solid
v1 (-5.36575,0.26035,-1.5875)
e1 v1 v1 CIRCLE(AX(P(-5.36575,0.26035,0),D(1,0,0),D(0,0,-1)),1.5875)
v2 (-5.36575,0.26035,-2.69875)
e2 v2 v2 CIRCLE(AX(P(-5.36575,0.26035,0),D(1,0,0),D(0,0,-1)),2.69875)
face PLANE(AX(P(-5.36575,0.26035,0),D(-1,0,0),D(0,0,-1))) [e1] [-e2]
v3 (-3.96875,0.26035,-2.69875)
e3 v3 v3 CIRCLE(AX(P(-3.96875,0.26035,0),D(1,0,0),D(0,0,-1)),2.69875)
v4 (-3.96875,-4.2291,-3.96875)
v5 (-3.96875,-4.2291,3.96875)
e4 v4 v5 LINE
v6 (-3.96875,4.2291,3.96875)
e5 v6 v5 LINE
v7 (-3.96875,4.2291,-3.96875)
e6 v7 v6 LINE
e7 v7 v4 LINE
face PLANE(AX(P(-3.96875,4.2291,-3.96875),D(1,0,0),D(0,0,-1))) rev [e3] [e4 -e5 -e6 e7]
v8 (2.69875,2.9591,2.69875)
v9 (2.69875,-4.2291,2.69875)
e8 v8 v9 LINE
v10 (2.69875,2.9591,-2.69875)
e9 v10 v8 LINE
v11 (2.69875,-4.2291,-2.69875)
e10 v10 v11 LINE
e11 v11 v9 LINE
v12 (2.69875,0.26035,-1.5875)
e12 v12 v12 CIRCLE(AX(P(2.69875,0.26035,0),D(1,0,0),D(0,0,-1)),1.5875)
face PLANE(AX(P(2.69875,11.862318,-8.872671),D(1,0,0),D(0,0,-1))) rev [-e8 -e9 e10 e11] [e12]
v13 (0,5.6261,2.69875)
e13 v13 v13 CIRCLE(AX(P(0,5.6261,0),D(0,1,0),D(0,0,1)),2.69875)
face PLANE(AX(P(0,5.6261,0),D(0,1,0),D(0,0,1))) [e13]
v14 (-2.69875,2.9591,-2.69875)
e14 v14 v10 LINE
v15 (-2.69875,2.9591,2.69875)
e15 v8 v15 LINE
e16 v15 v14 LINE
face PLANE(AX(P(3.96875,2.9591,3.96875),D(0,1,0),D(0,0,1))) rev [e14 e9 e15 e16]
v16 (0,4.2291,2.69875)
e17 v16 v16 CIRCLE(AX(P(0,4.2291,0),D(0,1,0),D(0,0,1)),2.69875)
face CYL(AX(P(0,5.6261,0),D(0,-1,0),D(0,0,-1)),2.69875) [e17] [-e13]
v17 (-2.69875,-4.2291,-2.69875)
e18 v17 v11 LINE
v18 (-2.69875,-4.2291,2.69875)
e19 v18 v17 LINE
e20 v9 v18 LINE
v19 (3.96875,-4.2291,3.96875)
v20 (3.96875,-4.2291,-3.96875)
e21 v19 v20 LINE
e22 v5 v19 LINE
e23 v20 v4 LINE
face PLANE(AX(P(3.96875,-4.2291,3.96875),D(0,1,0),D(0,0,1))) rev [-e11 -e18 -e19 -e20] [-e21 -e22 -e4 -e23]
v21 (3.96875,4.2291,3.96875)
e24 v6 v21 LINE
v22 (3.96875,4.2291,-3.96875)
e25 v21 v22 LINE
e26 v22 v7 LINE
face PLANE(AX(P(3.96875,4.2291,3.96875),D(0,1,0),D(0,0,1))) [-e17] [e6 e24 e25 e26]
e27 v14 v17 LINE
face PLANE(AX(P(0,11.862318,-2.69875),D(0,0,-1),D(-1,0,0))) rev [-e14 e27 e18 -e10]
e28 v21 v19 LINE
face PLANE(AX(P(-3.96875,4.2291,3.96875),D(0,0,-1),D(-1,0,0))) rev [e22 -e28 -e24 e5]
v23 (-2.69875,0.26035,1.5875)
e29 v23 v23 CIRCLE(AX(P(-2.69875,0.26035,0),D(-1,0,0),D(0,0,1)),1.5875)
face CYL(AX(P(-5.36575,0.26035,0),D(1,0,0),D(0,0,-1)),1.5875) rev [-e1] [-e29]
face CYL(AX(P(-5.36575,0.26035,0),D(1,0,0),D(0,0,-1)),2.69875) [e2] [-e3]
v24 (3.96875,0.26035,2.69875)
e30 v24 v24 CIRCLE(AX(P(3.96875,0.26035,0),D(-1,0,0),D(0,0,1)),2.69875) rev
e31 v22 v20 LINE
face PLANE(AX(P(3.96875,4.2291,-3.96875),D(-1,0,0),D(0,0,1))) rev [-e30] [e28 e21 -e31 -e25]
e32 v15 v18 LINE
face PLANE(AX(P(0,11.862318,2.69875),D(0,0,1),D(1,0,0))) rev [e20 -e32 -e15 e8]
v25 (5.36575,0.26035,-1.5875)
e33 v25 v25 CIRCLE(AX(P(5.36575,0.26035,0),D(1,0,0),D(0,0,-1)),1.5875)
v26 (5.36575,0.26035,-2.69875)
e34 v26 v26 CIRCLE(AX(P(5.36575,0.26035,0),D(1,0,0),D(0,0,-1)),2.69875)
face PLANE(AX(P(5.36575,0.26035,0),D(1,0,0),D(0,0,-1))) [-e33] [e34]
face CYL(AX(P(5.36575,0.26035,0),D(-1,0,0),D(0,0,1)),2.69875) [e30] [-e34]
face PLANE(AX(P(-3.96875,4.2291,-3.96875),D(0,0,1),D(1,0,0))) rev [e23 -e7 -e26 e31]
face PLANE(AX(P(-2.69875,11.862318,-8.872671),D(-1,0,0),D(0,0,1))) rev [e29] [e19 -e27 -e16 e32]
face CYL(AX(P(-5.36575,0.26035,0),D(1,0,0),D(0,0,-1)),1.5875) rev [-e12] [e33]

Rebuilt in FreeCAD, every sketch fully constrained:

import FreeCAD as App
import Part
import Sketcher
from FreeCAD import Vector
Q = App.Units.Quantity


def add_polygon(sketch, points):
    """Adds a closed chain of lines whose ends are joined by coincident constraints."""
    first, n = sketch.GeometryCount, len(points)
    for a, b in zip(points, points[1:] + points[:1]):
        sketch.addGeometry(Part.LineSegment(App.Vector(*a, 0), App.Vector(*b, 0)), False)
    for i in range(n):
        sketch.addConstraint(Sketcher.Constraint("Coincident", first + i, 2, first + (i + 1) % n, 1))

doc = App.newDocument("Part")
body = doc.addObject("PartDesign::Body", "Body")

# Sketch on XZ plane
sketch1 = body.newObject("Sketcher::SketchObject", "Sketch")
sketch1.AttachmentSupport = (doc.getObject("XZ_Plane"), [""])
sketch1.MapMode = "FlatFace"
add_polygon(sketch1, [(-4, -4), (-4, 4), (4, 4), (4, -4)])  # lines 0-3
sketch1.addConstraint(Sketcher.Constraint("Vertical", 0))
sketch1.addConstraint(Sketcher.Constraint("Horizontal", 1))
sketch1.addConstraint(Sketcher.Constraint("Vertical", 2))
sketch1.addConstraint(Sketcher.Constraint("Horizontal", 3))
sketch1.addConstraint(Sketcher.Constraint("Symmetric", 0, 2, 2, 2, -1, 1))
sketch1.addConstraint(Sketcher.Constraint("Equal", 3, 0))
sketch1.addConstraint(Sketcher.Constraint("DistanceX", 1, 1, 1, 2, Q("0.3125 in")))
pad1 = body.newObject("PartDesign::Pad", "Pad")
pad1.Profile = sketch1
pad1.Length = Q("0.333 in")
pad1.Midplane = True

# Sketch on XZ plane
sketch2 = body.newObject("Sketcher::SketchObject", "Sketch001")
sketch2.AttachmentSupport = (doc.getObject("XZ_Plane"), [""])
sketch2.MapMode = "FlatFace"
sketch2.AttachmentOffset = App.Placement(Vector(0, 0, 0.1665 * 25.4), App.Rotation())
add_polygon(sketch2, [(-3, 3), (-3, -3), (3, -3), (3, 3)])  # lines 0-3
sketch2.addConstraint(Sketcher.Constraint("Vertical", 0))
sketch2.addConstraint(Sketcher.Constraint("Horizontal", 1))
sketch2.addConstraint(Sketcher.Constraint("Vertical", 2))
sketch2.addConstraint(Sketcher.Constraint("Horizontal", 3))
sketch2.addConstraint(Sketcher.Constraint("Symmetric", 0, 2, 2, 2, -1, 1))
sketch2.addConstraint(Sketcher.Constraint("Equal", 3, 0))
sketch2.addConstraint(Sketcher.Constraint("DistanceX", 1, 1, 1, 2, Q("0.2125 in")))
pocket1 = body.newObject("PartDesign::Pocket", "Pocket")
pocket1.Profile = sketch2
pocket1.Length = Q("0.283 in")

# Sketch on XZ plane
sketch3 = body.newObject("Sketcher::SketchObject", "Sketch002")
sketch3.AttachmentSupport = (doc.getObject("XZ_Plane"), [""])
sketch3.MapMode = "FlatFace"
sketch3.AttachmentOffset = App.Placement(Vector(0, 0, -0.1665 * 25.4), App.Rotation())
sketch3.addGeometry(Part.Circle(Vector(0, 0, 0), Vector(0, 0, 1), 2.7), False)
sketch3.addConstraint(Sketcher.Constraint("Coincident", 0, 3, -1, 1))
sketch3.addConstraint(Sketcher.Constraint("Diameter", 0, Q("0.2125 in")))
pad2 = body.newObject("PartDesign::Pad", "Pad001")
pad2.Profile = sketch3
pad2.Length = Q("0.055 in")
pad2.Reversed = True

# Sketch on YZ plane
sketch4 = body.newObject("Sketcher::SketchObject", "Sketch003")
sketch4.AttachmentSupport = (doc.getObject("YZ_Plane"), [""])
sketch4.MapMode = "FlatFace"
sketch4.AttachmentOffset = App.Placement(Vector(0, 0, 0.15625 * 25.4), App.Rotation())
sketch4.addGeometry(Part.Circle(Vector(0.3, 0, 0), Vector(0, 0, 1), 2.7), False)
sketch4.addConstraint(Sketcher.Constraint("PointOnObject", 0, 3, -1))
sketch4.addConstraint(Sketcher.Constraint("Diameter", 0, Q("0.2125 in")))
sketch4.addConstraint(Sketcher.Constraint("DistanceX", -1, 1, 0, 3, Q("0.26035 mm")))
pad3 = body.newObject("PartDesign::Pad", "Pad002")
pad3.Profile = sketch4
pad3.Length = Q("0.055 in")
doc.recompute()

mirrored = body.newObject("PartDesign::Mirrored", "Mirrored")
mirrored.Originals = [pad3]
mirrored.MirrorPlane = (doc.getObject("YZ_Plane"), [""])
body.Tip = mirrored

# Sketch on YZ plane
sketch5 = body.newObject("Sketcher::SketchObject", "Sketch004")
sketch5.AttachmentSupport = (doc.getObject("YZ_Plane"), [""])
sketch5.MapMode = "FlatFace"
sketch5.AttachmentOffset = App.Placement(Vector(0, 0, 5.36575), App.Rotation())
sketch5.addGeometry(Part.Circle(Vector(0.3, 0, 0), Vector(0, 0, 1), 1.6), False)
sketch5.addConstraint(Sketcher.Constraint("PointOnObject", 0, 3, -1))
sketch5.addConstraint(Sketcher.Constraint("Diameter", 0, Q("0.125 in")))
sketch5.addConstraint(Sketcher.Constraint("DistanceX", -1, 1, 0, 3, Q("0.26035 mm")))
pocket2 = body.newObject("PartDesign::Pocket", "Pocket001")
pocket2.Profile = sketch5
pocket2.Type = "ThroughAll"

doc.recompute()
